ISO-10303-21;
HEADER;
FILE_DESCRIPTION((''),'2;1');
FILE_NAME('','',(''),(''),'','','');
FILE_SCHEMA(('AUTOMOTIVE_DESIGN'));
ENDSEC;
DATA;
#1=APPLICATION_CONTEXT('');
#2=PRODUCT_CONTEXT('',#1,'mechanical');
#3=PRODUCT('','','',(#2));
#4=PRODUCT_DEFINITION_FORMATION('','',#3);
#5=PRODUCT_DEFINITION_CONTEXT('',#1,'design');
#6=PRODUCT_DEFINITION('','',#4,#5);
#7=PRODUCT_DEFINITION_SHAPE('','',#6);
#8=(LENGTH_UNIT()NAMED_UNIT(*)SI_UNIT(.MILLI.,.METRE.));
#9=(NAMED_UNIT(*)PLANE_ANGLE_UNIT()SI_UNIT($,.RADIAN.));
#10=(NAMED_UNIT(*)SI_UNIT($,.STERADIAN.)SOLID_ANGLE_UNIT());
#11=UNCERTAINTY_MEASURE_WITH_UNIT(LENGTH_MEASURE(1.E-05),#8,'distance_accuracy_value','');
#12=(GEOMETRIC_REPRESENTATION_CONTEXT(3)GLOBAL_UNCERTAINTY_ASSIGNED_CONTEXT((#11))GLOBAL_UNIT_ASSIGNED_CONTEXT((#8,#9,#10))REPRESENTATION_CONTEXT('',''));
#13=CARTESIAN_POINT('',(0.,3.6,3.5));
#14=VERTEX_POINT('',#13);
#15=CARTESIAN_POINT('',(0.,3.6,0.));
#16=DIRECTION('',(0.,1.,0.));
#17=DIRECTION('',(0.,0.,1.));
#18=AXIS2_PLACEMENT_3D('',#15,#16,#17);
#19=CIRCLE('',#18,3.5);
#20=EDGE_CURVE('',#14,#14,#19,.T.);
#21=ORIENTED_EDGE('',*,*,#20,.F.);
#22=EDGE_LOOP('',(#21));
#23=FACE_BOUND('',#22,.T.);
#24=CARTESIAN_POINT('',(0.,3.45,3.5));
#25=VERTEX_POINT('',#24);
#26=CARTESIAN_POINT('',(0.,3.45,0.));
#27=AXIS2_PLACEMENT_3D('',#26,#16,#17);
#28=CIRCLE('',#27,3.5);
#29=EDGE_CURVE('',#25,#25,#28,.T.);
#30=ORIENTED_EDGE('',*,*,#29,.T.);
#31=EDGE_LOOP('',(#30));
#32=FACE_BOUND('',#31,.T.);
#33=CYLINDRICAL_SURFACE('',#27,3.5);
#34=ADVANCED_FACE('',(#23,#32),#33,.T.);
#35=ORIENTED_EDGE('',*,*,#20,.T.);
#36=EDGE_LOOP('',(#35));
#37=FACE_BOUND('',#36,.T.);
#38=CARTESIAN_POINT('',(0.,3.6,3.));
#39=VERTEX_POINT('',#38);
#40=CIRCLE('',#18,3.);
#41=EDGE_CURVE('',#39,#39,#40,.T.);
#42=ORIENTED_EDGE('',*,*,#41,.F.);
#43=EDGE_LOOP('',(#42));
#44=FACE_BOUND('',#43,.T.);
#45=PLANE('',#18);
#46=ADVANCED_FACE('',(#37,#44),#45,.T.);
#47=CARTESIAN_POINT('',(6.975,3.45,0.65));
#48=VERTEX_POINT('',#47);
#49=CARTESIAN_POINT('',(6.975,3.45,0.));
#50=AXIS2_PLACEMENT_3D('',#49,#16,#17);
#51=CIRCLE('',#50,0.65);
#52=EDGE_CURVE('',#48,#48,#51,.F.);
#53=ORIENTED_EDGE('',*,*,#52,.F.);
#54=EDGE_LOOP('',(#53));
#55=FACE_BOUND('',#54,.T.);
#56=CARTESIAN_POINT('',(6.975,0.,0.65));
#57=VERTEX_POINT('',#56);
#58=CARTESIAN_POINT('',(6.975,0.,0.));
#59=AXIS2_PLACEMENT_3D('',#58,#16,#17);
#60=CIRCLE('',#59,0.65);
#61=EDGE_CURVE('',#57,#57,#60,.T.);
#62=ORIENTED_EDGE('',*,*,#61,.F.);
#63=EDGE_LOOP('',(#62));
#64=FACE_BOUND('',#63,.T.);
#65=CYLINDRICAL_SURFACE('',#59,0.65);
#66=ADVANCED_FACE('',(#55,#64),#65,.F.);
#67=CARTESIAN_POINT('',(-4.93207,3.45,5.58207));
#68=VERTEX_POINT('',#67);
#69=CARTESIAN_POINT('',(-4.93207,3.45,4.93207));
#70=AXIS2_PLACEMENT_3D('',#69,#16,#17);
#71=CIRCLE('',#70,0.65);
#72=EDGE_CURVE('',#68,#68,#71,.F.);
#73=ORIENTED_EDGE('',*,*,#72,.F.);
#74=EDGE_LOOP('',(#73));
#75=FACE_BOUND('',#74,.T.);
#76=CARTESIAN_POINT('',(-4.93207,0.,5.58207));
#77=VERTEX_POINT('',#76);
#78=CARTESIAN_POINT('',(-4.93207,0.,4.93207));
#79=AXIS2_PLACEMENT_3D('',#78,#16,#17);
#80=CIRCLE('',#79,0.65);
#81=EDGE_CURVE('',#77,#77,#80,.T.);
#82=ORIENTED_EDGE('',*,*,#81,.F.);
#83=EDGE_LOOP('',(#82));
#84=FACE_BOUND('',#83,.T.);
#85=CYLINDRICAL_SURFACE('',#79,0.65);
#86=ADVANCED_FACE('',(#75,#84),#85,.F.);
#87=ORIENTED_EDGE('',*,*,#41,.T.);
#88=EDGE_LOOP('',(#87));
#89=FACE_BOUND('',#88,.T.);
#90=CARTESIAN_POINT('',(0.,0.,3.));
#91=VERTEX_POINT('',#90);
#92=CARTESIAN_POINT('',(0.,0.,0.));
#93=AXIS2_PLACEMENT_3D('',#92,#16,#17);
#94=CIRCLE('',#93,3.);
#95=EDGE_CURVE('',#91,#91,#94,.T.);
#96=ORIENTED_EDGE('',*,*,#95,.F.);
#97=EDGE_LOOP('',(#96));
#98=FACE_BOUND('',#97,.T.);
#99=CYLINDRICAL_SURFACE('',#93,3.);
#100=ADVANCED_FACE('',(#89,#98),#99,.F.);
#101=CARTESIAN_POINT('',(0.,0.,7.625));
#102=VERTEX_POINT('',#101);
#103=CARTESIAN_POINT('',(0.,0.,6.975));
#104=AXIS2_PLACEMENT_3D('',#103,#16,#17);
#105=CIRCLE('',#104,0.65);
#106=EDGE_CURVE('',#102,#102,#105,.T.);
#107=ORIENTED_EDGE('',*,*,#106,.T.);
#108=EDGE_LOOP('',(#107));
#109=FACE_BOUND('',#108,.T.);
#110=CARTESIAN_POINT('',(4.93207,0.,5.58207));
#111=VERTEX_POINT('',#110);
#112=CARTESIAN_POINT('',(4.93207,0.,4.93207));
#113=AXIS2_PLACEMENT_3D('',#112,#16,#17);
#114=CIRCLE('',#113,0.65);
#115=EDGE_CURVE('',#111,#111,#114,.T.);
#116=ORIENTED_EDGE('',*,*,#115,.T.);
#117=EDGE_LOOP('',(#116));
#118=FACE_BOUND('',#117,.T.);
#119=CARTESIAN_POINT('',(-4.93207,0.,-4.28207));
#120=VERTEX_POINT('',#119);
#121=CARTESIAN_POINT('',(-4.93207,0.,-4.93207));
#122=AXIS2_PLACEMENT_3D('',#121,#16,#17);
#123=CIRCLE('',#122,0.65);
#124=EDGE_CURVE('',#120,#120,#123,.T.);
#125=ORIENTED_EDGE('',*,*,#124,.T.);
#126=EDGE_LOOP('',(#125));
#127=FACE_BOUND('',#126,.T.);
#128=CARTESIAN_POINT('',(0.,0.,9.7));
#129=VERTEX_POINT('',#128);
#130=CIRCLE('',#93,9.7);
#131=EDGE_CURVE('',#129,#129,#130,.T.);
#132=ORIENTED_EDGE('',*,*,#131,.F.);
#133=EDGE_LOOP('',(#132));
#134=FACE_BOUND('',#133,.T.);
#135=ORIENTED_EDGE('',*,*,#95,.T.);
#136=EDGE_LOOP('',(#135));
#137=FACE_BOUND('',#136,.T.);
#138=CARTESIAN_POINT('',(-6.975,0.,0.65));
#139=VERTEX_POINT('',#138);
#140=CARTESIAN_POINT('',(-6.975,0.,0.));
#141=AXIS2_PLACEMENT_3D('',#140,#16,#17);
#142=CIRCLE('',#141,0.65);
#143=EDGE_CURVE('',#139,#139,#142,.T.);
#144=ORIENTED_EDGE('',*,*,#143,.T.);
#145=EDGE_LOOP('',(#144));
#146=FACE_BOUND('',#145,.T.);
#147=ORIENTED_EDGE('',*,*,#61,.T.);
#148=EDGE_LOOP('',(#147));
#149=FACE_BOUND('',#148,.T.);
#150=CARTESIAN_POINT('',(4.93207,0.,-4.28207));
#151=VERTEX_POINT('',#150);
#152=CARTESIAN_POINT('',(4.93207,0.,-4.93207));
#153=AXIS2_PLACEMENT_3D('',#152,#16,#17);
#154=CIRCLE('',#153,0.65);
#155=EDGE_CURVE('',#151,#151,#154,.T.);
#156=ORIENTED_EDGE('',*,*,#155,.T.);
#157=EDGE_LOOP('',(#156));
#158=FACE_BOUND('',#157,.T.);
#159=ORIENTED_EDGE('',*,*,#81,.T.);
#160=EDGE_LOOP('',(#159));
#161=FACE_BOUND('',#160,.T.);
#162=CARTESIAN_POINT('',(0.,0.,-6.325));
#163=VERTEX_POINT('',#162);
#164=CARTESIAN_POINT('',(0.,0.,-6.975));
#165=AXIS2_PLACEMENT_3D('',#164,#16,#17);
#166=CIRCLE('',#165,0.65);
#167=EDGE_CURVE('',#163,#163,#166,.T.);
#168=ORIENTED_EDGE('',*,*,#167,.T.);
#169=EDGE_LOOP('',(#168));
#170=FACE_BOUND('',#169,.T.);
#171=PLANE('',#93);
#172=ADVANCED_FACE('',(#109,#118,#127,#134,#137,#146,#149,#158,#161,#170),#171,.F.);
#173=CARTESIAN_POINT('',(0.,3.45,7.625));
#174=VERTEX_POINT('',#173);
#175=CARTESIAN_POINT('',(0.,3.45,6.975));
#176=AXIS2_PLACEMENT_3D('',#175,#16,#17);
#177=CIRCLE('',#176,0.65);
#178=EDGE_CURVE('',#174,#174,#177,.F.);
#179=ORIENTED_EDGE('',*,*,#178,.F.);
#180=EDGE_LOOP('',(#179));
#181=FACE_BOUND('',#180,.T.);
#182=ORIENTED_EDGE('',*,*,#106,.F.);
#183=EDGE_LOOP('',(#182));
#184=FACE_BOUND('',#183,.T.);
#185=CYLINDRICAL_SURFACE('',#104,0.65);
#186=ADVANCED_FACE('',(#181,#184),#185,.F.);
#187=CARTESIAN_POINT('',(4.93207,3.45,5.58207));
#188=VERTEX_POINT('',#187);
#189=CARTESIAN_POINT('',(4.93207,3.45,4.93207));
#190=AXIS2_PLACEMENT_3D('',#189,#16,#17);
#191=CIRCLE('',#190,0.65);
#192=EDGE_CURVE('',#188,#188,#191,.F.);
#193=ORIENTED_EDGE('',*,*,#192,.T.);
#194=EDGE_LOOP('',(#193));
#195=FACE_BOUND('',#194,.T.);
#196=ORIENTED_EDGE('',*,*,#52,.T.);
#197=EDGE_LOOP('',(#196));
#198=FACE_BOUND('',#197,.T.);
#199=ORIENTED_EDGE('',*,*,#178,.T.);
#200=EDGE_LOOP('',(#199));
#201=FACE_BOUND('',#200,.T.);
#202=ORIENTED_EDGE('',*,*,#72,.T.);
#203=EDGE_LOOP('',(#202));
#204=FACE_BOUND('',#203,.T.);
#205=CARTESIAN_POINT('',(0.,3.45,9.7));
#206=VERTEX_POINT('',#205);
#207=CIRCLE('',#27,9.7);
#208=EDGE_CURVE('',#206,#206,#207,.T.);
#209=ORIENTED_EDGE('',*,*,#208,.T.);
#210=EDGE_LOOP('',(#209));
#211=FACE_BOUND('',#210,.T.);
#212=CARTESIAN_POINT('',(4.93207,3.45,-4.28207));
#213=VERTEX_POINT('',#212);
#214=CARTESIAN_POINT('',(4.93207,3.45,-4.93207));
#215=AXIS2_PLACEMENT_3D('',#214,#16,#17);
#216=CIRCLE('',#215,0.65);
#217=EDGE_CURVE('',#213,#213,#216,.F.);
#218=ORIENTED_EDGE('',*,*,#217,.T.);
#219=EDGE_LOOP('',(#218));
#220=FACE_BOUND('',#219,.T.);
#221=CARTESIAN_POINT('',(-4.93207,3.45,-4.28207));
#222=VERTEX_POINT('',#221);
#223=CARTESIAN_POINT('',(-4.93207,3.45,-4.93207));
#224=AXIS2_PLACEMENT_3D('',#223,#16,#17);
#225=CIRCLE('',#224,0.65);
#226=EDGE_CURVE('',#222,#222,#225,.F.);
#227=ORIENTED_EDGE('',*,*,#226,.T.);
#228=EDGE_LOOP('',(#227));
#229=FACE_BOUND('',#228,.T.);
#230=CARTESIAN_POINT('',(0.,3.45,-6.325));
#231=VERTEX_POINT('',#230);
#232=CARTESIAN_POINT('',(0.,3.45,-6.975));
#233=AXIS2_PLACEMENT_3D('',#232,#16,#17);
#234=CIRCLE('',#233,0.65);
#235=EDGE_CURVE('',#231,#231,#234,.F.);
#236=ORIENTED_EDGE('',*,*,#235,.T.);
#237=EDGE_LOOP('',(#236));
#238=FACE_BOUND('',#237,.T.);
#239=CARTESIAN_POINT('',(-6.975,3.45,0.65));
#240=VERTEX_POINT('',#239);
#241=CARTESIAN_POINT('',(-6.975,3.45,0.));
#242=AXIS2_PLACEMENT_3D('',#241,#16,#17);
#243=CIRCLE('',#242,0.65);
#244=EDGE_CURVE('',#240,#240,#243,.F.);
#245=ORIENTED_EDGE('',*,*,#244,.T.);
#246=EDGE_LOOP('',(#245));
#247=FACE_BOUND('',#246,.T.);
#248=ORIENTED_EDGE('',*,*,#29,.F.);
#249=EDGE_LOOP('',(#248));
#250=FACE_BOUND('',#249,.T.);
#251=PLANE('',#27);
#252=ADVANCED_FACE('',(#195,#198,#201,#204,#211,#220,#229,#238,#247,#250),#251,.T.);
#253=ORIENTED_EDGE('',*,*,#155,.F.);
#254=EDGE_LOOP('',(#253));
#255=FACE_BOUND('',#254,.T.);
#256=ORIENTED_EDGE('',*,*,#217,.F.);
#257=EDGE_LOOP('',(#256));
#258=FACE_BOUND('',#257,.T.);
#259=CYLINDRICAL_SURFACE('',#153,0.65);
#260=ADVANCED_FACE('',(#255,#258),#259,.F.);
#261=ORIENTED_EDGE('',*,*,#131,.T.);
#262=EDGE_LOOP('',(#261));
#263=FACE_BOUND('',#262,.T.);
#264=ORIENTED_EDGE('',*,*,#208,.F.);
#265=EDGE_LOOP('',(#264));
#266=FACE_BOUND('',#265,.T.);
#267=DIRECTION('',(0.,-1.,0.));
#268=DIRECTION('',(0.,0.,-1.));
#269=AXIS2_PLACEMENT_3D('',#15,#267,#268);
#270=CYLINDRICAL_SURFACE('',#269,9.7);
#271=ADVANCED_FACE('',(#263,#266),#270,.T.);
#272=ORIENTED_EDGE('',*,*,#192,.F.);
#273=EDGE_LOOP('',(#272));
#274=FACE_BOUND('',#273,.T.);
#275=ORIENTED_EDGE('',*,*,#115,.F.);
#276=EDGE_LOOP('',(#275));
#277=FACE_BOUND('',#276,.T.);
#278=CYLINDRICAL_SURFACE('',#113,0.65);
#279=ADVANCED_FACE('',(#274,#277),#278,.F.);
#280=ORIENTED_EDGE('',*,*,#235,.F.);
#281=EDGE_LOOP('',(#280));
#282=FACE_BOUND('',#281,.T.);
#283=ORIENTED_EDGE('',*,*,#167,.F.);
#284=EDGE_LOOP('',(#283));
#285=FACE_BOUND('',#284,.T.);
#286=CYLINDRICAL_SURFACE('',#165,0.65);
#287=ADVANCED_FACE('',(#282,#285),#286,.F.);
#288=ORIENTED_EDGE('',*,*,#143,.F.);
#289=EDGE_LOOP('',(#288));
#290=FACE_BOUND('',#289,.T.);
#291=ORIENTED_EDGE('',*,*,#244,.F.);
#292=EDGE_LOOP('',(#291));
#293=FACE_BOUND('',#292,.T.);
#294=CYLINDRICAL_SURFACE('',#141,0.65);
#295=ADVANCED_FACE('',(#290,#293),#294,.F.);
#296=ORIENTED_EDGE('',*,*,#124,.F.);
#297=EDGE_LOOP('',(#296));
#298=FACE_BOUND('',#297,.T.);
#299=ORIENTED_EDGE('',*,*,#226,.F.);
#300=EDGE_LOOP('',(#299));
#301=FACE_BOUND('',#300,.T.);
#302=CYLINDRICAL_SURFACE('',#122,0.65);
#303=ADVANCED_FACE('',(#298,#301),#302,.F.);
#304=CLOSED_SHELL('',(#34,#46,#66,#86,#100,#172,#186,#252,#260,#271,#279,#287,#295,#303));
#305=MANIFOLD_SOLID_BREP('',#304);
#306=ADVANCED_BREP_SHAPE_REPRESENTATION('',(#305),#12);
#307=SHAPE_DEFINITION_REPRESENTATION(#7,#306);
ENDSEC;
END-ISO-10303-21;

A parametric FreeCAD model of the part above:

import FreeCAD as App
import Part
import Sketcher
from FreeCAD import Vector
Q = App.Units.Quantity

doc = App.newDocument("Part")
params = doc.addObject("Spreadsheet::Sheet", "Params")
for row, (alias, value) in enumerate([
    ("sketch1_diameter", "19.4 mm"),
    ("pad1_length", "3.6 mm"),
    ("sketch2_diameter", "1.3 mm"),
    ("sketch3_diameter", "6 mm"),
    ("sketch4_diameter", "7 mm"),
    ("sketch4_diameter2", "19.4 mm"),
    ("sketch4_diameter3", "1.3 mm"),
    ("pocket3_length", "0.15 mm"),
], start=1):
    params.set(f"A{row}", alias)
    params.set(f"B{row}", "=" + value)
    params.setAlias(f"B{row}", alias)

body = doc.addObject("PartDesign::Body", "Body")

sketch1 = body.newObject("Sketcher::SketchObject", "Sketch")
sketch1.AttachmentSupport = (doc.getObject("XZ_Plane"), [""])
sketch1.MapMode = "FlatFace"
sketch1.addGeometry(Part.Circle(Vector(0, 0, 0), Vector(0, 0, 1), 10), False)
sketch1.addConstraint(Sketcher.Constraint("Coincident", 0, 3, -1, 1))
sketch1.addConstraint(Sketcher.Constraint("Diameter", 0, Q("19.4 mm")))
sketch1.setExpression("Constraints[1]", "Params.sketch1_diameter")
pad1 = body.newObject("PartDesign::Pad", "Pad")
pad1.Profile = sketch1
pad1.setExpression("Length", "Params.pad1_length")
pad1.Reversed = True

sketch2 = body.newObject("Sketcher::SketchObject", "Sketch001")
sketch2.AttachmentSupport = (doc.getObject("XZ_Plane"), [""])
sketch2.MapMode = "FlatFace"
sketch2.AttachmentOffset = App.Placement(Vector(0, 0, -3.6), App.Rotation())
sketch2.addGeometry(Part.Circle(Vector(-7, 0, 0), Vector(0, 0, 1), 0.7), False)
sketch2.addGeometry(Part.Circle(Vector(-4.9, -4.9, 0), Vector(0, 0, 1), 0.7), False)
sketch2.addGeometry(Part.Circle(Vector(0, -7, 0), Vector(0, 0, 1), 0.7), False)
sketch2.addGeometry(Part.Circle(Vector(4.9, -4.9, 0), Vector(0, 0, 1), 0.7), False)
sketch2.addGeometry(Part.Circle(Vector(7, 0, 0), Vector(0, 0, 1), 0.7), False)
sketch2.addGeometry(Part.Circle(Vector(4.9, 4.9, 0), Vector(0, 0, 1), 0.7), False)
sketch2.addGeometry(Part.Circle(Vector(0, 7, 0), Vector(0, 0, 1), 0.7), False)
sketch2.addGeometry(Part.Circle(Vector(-4.9, 4.9, 0), Vector(0, 0, 1), 0.7), False)
sketch2.addConstraint(Sketcher.Constraint("Equal", 0, 1))
sketch2.addConstraint(Sketcher.Constraint("Equal", 1, 2))
sketch2.addConstraint(Sketcher.Constraint("Equal", 2, 3))
sketch2.addConstraint(Sketcher.Constraint("Equal", 3, 4))
sketch2.addConstraint(Sketcher.Constraint("Equal", 4, 5))
sketch2.addConstraint(Sketcher.Constraint("Equal", 5, 6))
sketch2.addConstraint(Sketcher.Constraint("Equal", 6, 7))
sketch2.addConstraint(Sketcher.Constraint("Symmetric", 0, 3, 4, 3, -1, 1))
sketch2.addConstraint(Sketcher.Constraint("Symmetric", 1, 3, 5, 3, -1, 1))
sketch2.addConstraint(Sketcher.Constraint("Symmetric", 2, 3, 6, 3, -1, 1))
sketch2.addConstraint(Sketcher.Constraint("Symmetric", 3, 3, 7, 3, -1, 1))
sketch2.addConstraint(Sketcher.Constraint("Symmetric", 1, 3, 3, 3, -2))
sketch2.addConstraint(Sketcher.Constraint("PointOnObject", 0, 3, -1))
sketch2.addConstraint(Sketcher.Constraint("PointOnObject", 2, 3, -2))
sketch2.addConstraint(Sketcher.Constraint("Diameter", 0, Q("1.3 mm")))
sketch2.addConstraint(Sketcher.Constraint("DistanceX", 0, 3, 4, 3, Q("13.95 mm")))
sketch2.addConstraint(Sketcher.Constraint("DistanceY", 2, 3, -1, 1, Q("6.975 mm")))
sketch2.addConstraint(Sketcher.Constraint("DistanceX", 1, 3, -1, 1, Q("4.93207 mm")))
sketch2.addConstraint(Sketcher.Constraint("DistanceY", 1, 3, -1, 1, Q("4.93207 mm")))
sketch2.setExpression("Constraints[14]", "Params.sketch2_diameter")
pocket1 = body.newObject("PartDesign::Pocket", "Pocket")
pocket1.Profile = sketch2
pocket1.Type = "ThroughAll"
pocket1.Midplane = True

sketch3 = body.newObject("Sketcher::SketchObject", "Sketch002")
sketch3.AttachmentSupport = (doc.getObject("XZ_Plane"), [""])
sketch3.MapMode = "FlatFace"
sketch3.AttachmentOffset = App.Placement(Vector(0, 0, -3.6), App.Rotation())
sketch3.addGeometry(Part.Circle(Vector(0, 0, 0), Vector(0, 0, 1), 3), False)
sketch3.addConstraint(Sketcher.Constraint("Coincident", 0, 3, -1, 1))
sketch3.addConstraint(Sketcher.Constraint("Diameter", 0, Q("6 mm")))
sketch3.setExpression("Constraints[1]", "Params.sketch3_diameter")
pocket2 = body.newObject("PartDesign::Pocket", "Pocket001")
pocket2.Profile = sketch3
pocket2.Type = "ThroughAll"
pocket2.Midplane = True

sketch4 = body.newObject("Sketcher::SketchObject", "Sketch003")
sketch4.AttachmentSupport = (doc.getObject("XZ_Plane"), [""])
sketch4.MapMode = "FlatFace"
sketch4.AttachmentOffset = App.Placement(Vector(0, 0, -3.6), App.Rotation())
sketch4.addGeometry(Part.Circle(Vector(0, 0, 0), Vector(0, 0, 1), 9.7), False)
sketch4.addGeometry(Part.Circle(Vector(-4.9, -4.9, 0), Vector(0, 0, 1), 0.7), False)
sketch4.addGeometry(Part.Circle(Vector(0, -7, 0), Vector(0, 0, 1), 0.7), False)
sketch4.addGeometry(Part.Circle(Vector(-7, 0, 0), Vector(0, 0, 1), 0.7), False)
sketch4.addGeometry(Part.Circle(Vector(-4.9, 4.9, 0), Vector(0, 0, 1), 0.7), False)
sketch4.addGeometry(Part.Circle(Vector(4.9, -4.9, 0), Vector(0, 0, 1), 0.7), False)
sketch4.addGeometry(Part.Circle(Vector(7, 0, 0), Vector(0, 0, 1), 0.7), False)
sketch4.addGeometry(Part.Circle(Vector(0, 0, 0), Vector(0, 0, 1), 3.5), False)
sketch4.addGeometry(Part.Circle(Vector(0, 7, 0), Vector(0, 0, 1), 0.7), False)
sketch4.addGeometry(Part.Circle(Vector(4.9, 4.9, 0), Vector(0, 0, 1), 0.7), False)
sketch4.addConstraint(Sketcher.Constraint("Coincident", 0, 3, -1, 1))
sketch4.addConstraint(Sketcher.Constraint("Coincident", 7, 3, -1, 1))
sketch4.addConstraint(Sketcher.Constraint("Equal", 1, 2))
sketch4.addConstraint(Sketcher.Constraint("Equal", 2, 3))
sketch4.addConstraint(Sketcher.Constraint("Equal", 3, 4))
sketch4.addConstraint(Sketcher.Constraint("Equal", 4, 5))
sketch4.addConstraint(Sketcher.Constraint("Equal", 5, 6))
sketch4.addConstraint(Sketcher.Constraint("Equal", 6, 8))
sketch4.addConstraint(Sketcher.Constraint("Equal", 8, 9))
sketch4.addConstraint(Sketcher.Constraint("Symmetric", 4, 3, 5, 3, -1, 1))
sketch4.addConstraint(Sketcher.Constraint("Symmetric", 3, 3, 6, 3, -1, 1))
sketch4.addConstraint(Sketcher.Constraint("Symmetric", 2, 3, 8, 3, -1, 1))
sketch4.addConstraint(Sketcher.Constraint("Symmetric", 1, 3, 9, 3, -1, 1))
sketch4.addConstraint(Sketcher.Constraint("Symmetric", 1, 3, 5, 3, -2))
sketch4.addConstraint(Sketcher.Constraint("PointOnObject", 2, 3, -2))
sketch4.addConstraint(Sketcher.Constraint("PointOnObject", 3, 3, -1))
sketch4.addConstraint(Sketcher.Constraint("Diameter", 7, Q("7 mm")))
sketch4.addConstraint(Sketcher.Constraint("Diameter", 0, Q("19.4 mm")))
sketch4.addConstraint(Sketcher.Constraint("Diameter", 1, Q("1.3 mm")))
sketch4.addConstraint(Sketcher.Constraint("DistanceY", 2, 3, -1, 1, Q("6.975 mm")))
sketch4.addConstraint(Sketcher.Constraint("DistanceX", 3, 3, -1, 1, Q("6.975 mm")))
sketch4.addConstraint(Sketcher.Constraint("DistanceX", 1, 3, -1, 1, Q("4.93207 mm")))
sketch4.addConstraint(Sketcher.Constraint("DistanceY", 1, 3, -1, 1, Q("4.93207 mm")))
sketch4.setExpression("Constraints[16]", "Params.sketch4_diameter")
sketch4.setExpression("Constraints[17]", "Params.sketch4_diameter2")
sketch4.setExpression("Constraints[18]", "Params.sketch4_diameter3")
pocket3 = body.newObject("PartDesign::Pocket", "Pocket002")
pocket3.Profile = sketch4
pocket3.setExpression("Length", "Params.pocket3_length")
pocket3.Reversed = True

doc.recompute()
